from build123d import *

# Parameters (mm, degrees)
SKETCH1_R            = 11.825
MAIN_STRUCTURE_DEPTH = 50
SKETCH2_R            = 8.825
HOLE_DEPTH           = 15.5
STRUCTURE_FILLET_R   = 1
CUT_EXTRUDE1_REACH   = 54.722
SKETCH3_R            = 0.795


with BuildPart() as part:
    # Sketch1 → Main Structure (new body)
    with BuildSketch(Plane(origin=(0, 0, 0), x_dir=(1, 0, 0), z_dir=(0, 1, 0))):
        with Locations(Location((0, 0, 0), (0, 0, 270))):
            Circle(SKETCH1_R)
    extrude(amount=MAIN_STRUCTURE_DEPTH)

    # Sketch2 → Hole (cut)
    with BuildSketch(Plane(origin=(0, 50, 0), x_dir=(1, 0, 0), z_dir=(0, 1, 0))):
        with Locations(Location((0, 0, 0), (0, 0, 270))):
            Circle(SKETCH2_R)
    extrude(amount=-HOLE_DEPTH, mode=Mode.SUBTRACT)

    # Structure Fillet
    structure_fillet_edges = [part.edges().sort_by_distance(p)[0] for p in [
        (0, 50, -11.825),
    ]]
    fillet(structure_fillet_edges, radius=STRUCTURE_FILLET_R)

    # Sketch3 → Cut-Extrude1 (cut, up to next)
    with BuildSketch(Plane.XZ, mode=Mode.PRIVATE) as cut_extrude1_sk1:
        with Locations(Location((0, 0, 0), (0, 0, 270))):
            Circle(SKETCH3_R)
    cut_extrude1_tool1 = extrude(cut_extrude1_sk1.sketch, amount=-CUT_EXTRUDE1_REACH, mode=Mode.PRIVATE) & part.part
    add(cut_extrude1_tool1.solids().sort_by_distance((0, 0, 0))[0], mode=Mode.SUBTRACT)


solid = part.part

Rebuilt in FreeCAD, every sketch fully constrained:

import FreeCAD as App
import Part
import Sketcher


def edges_at(feature, points):
    """Names of the edges that pass closest to the given points."""
    edges = feature.Shape.Edges
    near = lambda p: min(range(len(edges)), key=lambda i: edges[i].distToShape(Part.Vertex(*p))[0])
    return sorted({f"Edge{near(p) + 1}" for p in points})

doc = App.newDocument("Part")
body = doc.addObject("PartDesign::Body", "Body")

# Sketch on XZ plane
sketch1 = doc.addObject("Sketcher::SketchObject", "Sketch")
body.addObject(sketch1)
sketch1.AttachmentSupport = (doc.XZ_Plane, [""])
sketch1.MapMode = "FlatFace"
sketch1.addGeometry(Part.Circle(App.Vector(0, 0, 0), App.Vector(0, 0, 1), 12), False)
sketch1.addConstraint([
    Sketcher.Constraint("Coincident", 0, 3, -1, 1),
    Sketcher.Constraint("Diameter", 0, 23.65),
])
pad1 = doc.addObject("PartDesign::Pad", "Pad")
body.addObject(pad1)
pad1.Profile = sketch1
pad1.Length = 50
pad1.Reversed = True

# Sketch on XZ plane
sketch2 = doc.addObject("Sketcher::SketchObject", "Sketch001")
body.addObject(sketch2)
sketch2.AttachmentSupport = (doc.XZ_Plane, [""])
sketch2.MapMode = "FlatFace"
sketch2.AttachmentOffset = App.Placement(App.Vector(0, 0, -50), App.Rotation())
sketch2.addGeometry(Part.Circle(App.Vector(0, 0, 0), App.Vector(0, 0, 1), 9), False)
sketch2.addConstraint([
    Sketcher.Constraint("Coincident", 0, 3, -1, 1),
    Sketcher.Constraint("Diameter", 0, 17.65),
])
pocket1 = doc.addObject("PartDesign::Pocket", "Pocket")
body.addObject(pocket1)
pocket1.Profile = sketch2
pocket1.Length = 15.5
pocket1.Reversed = True
doc.recompute()

fillet = doc.addObject("PartDesign::Fillet", "Fillet")
body.addObject(fillet)
fillet.Base = (pocket1, edges_at(pocket1, [(0, 50, -11.825)]))
fillet.Radius = 1

# Sketch on XZ plane
sketch3 = doc.addObject("Sketcher::SketchObject", "Sketch002")
body.addObject(sketch3)
sketch3.AttachmentSupport = (doc.XZ_Plane, [""])
sketch3.MapMode = "FlatFace"
sketch3.addGeometry(Part.Circle(App.Vector(0, 0, 0), App.Vector(0, 0, 1), 0.8), False)
sketch3.addConstraint([
    Sketcher.Constraint("Coincident", 0, 3, -1, 1),
    Sketcher.Constraint("Diameter", 0, 1.59),
])
pocket2 = doc.addObject("PartDesign::Pocket", "Pocket001")
body.addObject(pocket2)
pocket2.Profile = sketch3
pocket2.Type = "UpToFirst"

doc.recompute()
